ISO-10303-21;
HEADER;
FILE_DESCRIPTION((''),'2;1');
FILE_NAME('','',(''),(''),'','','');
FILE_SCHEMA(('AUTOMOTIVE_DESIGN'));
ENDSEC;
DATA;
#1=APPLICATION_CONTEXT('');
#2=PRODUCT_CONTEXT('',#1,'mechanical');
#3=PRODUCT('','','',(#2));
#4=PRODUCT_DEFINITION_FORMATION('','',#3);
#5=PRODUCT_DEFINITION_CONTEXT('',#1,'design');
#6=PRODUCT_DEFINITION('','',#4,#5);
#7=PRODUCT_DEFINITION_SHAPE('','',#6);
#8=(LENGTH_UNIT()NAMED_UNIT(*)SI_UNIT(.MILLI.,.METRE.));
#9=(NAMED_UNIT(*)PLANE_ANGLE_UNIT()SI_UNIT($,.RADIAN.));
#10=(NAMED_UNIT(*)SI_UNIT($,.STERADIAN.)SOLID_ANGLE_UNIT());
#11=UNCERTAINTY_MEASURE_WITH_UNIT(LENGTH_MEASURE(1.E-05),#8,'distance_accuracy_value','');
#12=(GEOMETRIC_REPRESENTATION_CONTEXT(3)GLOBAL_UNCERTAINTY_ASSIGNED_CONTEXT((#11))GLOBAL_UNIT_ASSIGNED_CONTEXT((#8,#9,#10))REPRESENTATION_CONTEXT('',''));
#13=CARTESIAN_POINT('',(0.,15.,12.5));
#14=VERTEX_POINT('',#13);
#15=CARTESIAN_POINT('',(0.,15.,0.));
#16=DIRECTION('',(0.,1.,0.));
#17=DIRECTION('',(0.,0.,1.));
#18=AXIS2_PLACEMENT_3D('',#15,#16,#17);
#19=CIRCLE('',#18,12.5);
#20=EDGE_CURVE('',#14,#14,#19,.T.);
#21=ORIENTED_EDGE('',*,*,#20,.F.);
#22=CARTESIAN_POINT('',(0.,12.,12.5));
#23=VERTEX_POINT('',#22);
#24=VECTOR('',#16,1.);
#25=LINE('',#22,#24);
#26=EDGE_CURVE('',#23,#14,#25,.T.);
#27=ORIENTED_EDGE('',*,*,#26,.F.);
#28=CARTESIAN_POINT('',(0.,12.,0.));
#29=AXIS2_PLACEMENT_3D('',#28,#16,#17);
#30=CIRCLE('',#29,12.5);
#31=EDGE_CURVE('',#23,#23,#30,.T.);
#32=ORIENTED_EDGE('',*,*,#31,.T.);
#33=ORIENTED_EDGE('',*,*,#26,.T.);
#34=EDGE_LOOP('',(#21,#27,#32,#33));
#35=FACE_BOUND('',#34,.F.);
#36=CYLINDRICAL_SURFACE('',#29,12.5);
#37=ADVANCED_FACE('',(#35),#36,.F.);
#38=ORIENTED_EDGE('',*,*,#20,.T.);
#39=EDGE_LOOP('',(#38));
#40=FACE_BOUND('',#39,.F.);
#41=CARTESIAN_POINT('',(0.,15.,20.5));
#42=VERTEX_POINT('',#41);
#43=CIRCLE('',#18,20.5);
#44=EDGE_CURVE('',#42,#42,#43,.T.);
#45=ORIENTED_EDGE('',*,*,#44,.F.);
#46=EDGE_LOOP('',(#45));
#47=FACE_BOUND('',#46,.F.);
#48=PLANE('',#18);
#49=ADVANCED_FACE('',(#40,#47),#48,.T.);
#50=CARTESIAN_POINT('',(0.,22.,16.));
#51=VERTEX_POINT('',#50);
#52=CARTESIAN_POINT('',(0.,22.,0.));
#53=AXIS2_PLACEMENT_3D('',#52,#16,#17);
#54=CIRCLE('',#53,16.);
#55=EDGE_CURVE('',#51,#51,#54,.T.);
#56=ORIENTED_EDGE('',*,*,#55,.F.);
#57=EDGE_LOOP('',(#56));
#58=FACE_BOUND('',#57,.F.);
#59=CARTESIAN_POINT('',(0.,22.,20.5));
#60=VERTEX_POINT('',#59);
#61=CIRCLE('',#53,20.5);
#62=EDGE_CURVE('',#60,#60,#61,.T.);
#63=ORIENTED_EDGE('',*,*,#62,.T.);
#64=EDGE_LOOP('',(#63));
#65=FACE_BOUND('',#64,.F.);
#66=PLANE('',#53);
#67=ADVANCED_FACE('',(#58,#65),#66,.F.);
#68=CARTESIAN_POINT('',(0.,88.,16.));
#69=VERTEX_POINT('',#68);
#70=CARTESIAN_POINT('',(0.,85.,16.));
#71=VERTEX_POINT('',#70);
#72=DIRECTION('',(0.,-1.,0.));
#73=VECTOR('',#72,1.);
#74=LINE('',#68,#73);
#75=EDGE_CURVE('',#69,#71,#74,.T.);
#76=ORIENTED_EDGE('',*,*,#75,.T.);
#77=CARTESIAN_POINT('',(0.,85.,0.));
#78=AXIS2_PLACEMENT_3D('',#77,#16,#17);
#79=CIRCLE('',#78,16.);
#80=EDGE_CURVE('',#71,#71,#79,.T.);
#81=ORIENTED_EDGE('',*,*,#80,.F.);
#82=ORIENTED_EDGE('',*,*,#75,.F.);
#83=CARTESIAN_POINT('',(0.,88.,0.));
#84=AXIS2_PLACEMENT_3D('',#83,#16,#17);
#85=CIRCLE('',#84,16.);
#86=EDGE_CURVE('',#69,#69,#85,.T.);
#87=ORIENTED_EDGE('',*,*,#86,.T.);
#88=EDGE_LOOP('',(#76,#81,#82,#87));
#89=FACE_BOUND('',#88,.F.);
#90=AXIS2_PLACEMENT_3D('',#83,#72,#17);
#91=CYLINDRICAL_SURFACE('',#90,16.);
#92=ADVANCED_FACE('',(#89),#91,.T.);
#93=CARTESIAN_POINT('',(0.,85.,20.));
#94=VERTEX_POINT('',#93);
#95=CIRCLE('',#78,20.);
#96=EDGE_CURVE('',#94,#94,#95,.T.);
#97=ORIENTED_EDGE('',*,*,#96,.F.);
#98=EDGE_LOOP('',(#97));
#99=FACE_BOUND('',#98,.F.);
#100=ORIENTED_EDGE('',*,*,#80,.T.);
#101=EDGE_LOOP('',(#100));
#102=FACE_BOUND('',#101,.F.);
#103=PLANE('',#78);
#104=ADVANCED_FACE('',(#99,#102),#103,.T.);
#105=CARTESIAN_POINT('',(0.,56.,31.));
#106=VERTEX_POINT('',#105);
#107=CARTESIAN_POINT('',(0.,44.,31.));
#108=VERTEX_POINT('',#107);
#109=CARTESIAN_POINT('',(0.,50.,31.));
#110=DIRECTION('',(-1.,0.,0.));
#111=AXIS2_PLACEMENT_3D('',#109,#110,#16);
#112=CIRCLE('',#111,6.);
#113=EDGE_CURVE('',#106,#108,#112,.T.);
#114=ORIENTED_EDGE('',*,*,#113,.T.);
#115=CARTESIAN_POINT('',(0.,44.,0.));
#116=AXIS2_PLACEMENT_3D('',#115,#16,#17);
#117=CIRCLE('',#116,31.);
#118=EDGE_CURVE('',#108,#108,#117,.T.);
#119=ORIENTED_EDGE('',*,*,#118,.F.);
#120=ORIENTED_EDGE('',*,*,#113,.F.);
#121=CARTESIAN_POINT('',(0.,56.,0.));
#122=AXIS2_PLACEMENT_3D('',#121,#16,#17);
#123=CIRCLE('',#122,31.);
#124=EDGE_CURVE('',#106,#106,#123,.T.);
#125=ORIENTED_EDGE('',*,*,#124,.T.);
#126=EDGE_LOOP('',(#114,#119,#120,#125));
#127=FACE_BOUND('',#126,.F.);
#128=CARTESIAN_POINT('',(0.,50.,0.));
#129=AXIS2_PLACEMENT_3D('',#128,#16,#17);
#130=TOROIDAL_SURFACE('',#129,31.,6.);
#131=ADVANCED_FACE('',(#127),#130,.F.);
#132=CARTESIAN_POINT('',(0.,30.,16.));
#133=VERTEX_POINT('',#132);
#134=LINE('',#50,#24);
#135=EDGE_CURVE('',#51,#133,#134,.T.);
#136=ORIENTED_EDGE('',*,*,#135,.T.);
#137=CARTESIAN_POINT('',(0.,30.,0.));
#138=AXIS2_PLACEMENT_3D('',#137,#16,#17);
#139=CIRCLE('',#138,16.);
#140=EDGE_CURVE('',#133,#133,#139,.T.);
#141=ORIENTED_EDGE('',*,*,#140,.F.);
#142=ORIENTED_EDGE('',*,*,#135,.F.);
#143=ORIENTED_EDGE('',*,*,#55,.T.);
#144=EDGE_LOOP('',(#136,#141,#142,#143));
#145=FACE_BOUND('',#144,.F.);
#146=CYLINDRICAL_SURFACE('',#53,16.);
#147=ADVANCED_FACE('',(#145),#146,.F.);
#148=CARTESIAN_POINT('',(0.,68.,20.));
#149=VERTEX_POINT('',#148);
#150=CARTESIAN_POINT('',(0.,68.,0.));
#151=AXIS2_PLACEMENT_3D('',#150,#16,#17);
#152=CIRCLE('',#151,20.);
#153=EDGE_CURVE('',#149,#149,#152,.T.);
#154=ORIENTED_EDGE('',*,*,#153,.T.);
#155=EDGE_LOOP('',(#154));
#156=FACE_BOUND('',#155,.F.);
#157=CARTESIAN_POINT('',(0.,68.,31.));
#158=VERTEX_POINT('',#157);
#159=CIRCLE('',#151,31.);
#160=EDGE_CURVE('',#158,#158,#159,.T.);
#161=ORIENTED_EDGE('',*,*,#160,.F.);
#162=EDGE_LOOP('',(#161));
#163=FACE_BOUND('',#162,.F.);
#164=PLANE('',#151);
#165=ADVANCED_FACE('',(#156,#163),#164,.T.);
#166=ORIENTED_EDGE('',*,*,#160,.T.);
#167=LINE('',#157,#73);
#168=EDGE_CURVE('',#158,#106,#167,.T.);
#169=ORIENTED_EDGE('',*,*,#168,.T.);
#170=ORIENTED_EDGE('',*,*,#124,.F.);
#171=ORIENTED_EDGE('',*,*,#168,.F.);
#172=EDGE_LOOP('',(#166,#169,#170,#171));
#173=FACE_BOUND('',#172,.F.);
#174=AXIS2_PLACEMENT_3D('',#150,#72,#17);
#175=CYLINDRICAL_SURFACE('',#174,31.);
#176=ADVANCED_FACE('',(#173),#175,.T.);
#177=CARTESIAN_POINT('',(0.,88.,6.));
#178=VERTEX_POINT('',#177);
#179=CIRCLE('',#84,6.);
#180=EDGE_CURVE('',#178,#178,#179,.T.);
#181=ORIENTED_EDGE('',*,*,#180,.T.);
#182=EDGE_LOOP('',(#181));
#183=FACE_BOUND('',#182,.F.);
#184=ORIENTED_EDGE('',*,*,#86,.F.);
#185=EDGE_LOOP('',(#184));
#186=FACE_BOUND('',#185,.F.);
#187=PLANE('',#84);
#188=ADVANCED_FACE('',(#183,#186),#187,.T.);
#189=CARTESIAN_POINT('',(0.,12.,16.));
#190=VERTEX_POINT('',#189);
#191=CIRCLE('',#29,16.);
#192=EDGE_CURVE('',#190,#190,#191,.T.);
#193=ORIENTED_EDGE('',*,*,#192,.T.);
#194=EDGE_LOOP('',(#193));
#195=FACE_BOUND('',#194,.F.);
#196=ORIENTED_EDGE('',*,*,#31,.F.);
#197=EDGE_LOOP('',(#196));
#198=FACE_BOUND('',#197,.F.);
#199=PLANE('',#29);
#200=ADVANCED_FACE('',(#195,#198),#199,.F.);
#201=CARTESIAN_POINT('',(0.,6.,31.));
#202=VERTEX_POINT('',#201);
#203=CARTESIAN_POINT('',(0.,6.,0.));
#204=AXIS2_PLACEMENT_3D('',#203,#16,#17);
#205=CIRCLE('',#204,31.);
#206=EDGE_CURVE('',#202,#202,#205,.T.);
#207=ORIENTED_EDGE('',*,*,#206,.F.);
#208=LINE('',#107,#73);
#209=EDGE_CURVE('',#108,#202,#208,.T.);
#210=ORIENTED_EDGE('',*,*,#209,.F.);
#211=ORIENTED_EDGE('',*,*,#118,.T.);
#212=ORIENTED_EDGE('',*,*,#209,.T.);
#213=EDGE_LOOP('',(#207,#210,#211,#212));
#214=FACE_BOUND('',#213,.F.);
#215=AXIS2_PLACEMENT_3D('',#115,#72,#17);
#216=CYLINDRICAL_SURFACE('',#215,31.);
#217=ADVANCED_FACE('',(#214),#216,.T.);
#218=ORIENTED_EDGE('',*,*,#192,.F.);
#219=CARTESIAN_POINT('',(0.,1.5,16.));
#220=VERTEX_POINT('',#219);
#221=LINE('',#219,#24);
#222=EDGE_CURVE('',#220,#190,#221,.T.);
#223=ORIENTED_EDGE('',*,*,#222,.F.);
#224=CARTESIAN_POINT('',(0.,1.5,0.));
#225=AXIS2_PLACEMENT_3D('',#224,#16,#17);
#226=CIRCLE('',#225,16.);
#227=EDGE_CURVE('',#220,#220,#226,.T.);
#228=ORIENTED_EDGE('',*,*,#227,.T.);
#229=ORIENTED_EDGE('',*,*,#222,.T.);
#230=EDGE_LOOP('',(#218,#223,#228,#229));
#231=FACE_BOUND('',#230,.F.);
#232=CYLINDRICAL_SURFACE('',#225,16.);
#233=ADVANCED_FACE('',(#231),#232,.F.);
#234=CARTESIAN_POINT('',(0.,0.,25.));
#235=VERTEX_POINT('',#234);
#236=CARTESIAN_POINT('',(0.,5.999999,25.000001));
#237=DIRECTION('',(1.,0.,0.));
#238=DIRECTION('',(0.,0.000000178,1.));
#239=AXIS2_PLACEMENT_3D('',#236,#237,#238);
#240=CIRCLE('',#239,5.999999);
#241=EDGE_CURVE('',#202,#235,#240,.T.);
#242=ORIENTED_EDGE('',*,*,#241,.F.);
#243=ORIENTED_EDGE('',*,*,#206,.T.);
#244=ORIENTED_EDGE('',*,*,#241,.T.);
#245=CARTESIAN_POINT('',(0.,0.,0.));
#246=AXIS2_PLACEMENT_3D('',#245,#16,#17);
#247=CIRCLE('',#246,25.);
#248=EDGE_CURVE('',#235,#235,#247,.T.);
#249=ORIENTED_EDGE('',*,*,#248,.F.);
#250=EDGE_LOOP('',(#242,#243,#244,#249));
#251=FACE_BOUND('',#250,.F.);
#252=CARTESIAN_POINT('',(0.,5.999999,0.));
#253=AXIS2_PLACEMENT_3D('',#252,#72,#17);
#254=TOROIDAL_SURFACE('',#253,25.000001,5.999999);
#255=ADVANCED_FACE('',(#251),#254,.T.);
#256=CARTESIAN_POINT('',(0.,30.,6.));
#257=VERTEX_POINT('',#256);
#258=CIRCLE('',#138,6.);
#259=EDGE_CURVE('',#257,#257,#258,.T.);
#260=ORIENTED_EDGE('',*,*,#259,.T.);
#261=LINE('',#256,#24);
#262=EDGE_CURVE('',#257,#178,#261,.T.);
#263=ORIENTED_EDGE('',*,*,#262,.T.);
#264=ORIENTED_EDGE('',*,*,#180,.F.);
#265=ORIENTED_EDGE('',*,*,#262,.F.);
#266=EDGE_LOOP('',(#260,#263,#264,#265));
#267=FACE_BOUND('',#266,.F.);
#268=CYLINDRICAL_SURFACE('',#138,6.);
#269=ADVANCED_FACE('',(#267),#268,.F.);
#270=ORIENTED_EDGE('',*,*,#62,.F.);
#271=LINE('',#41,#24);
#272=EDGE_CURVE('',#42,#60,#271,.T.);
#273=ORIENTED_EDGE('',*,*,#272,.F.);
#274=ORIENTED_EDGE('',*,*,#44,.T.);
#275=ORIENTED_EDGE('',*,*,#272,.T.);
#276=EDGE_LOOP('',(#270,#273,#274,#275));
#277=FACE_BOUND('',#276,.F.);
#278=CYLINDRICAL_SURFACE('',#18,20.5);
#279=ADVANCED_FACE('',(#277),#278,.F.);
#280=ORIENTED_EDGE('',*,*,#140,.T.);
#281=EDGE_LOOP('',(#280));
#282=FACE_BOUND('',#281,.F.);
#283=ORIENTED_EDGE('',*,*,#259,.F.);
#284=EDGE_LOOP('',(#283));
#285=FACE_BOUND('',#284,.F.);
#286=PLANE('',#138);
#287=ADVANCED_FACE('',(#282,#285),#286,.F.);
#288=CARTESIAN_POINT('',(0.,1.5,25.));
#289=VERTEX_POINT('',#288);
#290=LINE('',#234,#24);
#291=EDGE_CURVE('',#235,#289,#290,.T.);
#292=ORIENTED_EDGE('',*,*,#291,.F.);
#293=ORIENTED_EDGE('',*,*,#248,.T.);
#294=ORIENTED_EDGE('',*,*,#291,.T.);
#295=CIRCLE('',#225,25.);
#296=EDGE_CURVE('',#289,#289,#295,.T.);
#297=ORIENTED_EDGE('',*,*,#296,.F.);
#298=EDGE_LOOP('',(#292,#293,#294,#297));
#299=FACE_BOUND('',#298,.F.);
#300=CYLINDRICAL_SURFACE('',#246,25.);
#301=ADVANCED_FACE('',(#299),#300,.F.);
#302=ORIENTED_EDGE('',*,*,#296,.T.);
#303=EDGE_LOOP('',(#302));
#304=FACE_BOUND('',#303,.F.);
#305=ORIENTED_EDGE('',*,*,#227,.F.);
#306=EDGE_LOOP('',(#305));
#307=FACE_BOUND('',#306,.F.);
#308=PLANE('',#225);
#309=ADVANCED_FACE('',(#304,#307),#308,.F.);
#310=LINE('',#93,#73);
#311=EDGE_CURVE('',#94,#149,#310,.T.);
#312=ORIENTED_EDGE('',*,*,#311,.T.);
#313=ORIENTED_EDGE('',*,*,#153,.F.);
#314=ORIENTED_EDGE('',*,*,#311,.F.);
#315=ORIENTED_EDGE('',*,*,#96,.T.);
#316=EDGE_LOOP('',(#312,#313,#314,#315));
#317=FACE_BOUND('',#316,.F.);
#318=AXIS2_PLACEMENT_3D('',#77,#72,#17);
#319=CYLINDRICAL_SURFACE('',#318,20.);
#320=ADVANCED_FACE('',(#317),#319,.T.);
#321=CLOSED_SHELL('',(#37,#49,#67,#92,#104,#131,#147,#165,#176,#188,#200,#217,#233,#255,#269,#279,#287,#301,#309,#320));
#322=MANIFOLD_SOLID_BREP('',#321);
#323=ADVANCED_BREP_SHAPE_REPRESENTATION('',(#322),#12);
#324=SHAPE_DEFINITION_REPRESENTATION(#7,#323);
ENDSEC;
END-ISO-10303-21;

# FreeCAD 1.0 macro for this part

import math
import FreeCAD as App
import Part
import Sketcher
Q = App.Units.Quantity

doc = App.newDocument("Part")
body = doc.addObject("PartDesign::Body", "Body")

# Sketch on YZ plane
sketch1 = body.newObject("Sketcher::SketchObject", "Sketch")
sketch1.AttachmentSupport = (doc.getObject("YZ_Plane"), [""])
sketch1.MapMode = "FlatFace"
sketch1.addGeometry([
    Part.ArcOfCircle(Part.Circle(App.Vector(6, 25, 0), App.Vector(0, 0, 1), 6), math.radians(90), math.radians(180)),  # 0
    Part.LineSegment(App.Vector(0, 25, 0), App.Vector(1.5, 25, 0)),  # 1
    Part.LineSegment(App.Vector(1.5, 25, 0), App.Vector(1.5, 16, 0)),  # 2
    Part.LineSegment(App.Vector(1.5, 16, 0), App.Vector(12, 16, 0)),  # 3
    Part.LineSegment(App.Vector(12, 16, 0), App.Vector(12, 12.5, 0)),  # 4
    Part.LineSegment(App.Vector(12, 12.5, 0), App.Vector(15, 12.5, 0)),  # 5
    Part.LineSegment(App.Vector(15, 12.5, 0), App.Vector(15, 20.5, 0)),  # 6
    Part.LineSegment(App.Vector(15, 20.5, 0), App.Vector(22, 20.5, 0)),  # 7
    Part.LineSegment(App.Vector(22, 20.5, 0), App.Vector(22, 16, 0)),  # 8
    Part.LineSegment(App.Vector(22, 16, 0), App.Vector(30, 16, 0)),  # 9
    Part.LineSegment(App.Vector(30, 16, 0), App.Vector(30, 6, 0)),  # 10
    Part.LineSegment(App.Vector(30, 6, 0), App.Vector(88, 6, 0)),  # 11
    Part.LineSegment(App.Vector(88, 6, 0), App.Vector(88, 16, 0)),  # 12
    Part.LineSegment(App.Vector(88, 16, 0), App.Vector(85, 16, 0)),  # 13
    Part.LineSegment(App.Vector(85, 16, 0), App.Vector(85, 20, 0)),  # 14
    Part.LineSegment(App.Vector(85, 20, 0), App.Vector(68, 20, 0)),  # 15
    Part.LineSegment(App.Vector(68, 20, 0), App.Vector(68, 31, 0)),  # 16
    Part.LineSegment(App.Vector(68, 31, 0), App.Vector(56, 31, 0)),  # 17
    Part.ArcOfCircle(Part.Circle(App.Vector(50, 31, 0), App.Vector(0, 0, 1), 6), math.radians(180), math.radians(360)),  # 18
    Part.LineSegment(App.Vector(44, 31, 0), App.Vector(6, 31, 0)),  # 19
], False)
sketch1.addConstraint([
    Sketcher.Constraint("Coincident", 0, 2, 1, 1),
    Sketcher.Constraint("Coincident", 1, 2, 2, 1),
    Sketcher.Constraint("Coincident", 2, 2, 3, 1),
    Sketcher.Constraint("Coincident", 3, 2, 4, 1),
    Sketcher.Constraint("Coincident", 4, 2, 5, 1),
    Sketcher.Constraint("Coincident", 5, 2, 6, 1),
    Sketcher.Constraint("Coincident", 6, 2, 7, 1),
    Sketcher.Constraint("Coincident", 7, 2, 8, 1),
    Sketcher.Constraint("Coincident", 8, 2, 9, 1),
    Sketcher.Constraint("Coincident", 9, 2, 10, 1),
    Sketcher.Constraint("Coincident", 10, 2, 11, 1),
    Sketcher.Constraint("Coincident", 11, 2, 12, 1),
    Sketcher.Constraint("Coincident", 12, 2, 13, 1),
    Sketcher.Constraint("Coincident", 13, 2, 14, 1),
    Sketcher.Constraint("Coincident", 14, 2, 15, 1),
    Sketcher.Constraint("Coincident", 15, 2, 16, 1),
    Sketcher.Constraint("Coincident", 16, 2, 17, 1),
    Sketcher.Constraint("Coincident", 17, 2, 18, 2),
    Sketcher.Constraint("Coincident", 18, 1, 19, 1),
    Sketcher.Constraint("Tangent", 19, 2, 0, 1),
    Sketcher.Constraint("Horizontal", 1),
    Sketcher.Constraint("Vertical", 2),
    Sketcher.Constraint("Horizontal", 3),
    Sketcher.Constraint("Vertical", 4),
    Sketcher.Constraint("Horizontal", 5),
    Sketcher.Constraint("Vertical", 6),
    Sketcher.Constraint("Horizontal", 7),
    Sketcher.Constraint("Vertical", 8),
    Sketcher.Constraint("Horizontal", 9),
    Sketcher.Constraint("Vertical", 10),
    Sketcher.Constraint("Horizontal", 11),
    Sketcher.Constraint("Vertical", 12),
    Sketcher.Constraint("Horizontal", 13),
    Sketcher.Constraint("Vertical", 14),
    Sketcher.Constraint("Horizontal", 15),
    Sketcher.Constraint("Vertical", 16),
    Sketcher.Constraint("Horizontal", 17),
    Sketcher.Constraint("Horizontal", 19),
    Sketcher.Constraint("Equal", 0, 18),
    Sketcher.Constraint("PointOnObject", 0, 2, -2),
    Sketcher.Constraint("Horizontal", 3, 2, 8, 2),
    Sketcher.Constraint("Horizontal", 9, 2, 12, 2),
    Sketcher.Constraint("Horizontal", 18, 3, 16, 2),
    Sketcher.Constraint("Horizontal", 17, 2, 18, 1),
    Sketcher.Constraint("Equal", 5, 13),
    Sketcher.Constraint("Equal", 9, 6),
    Sketcher.Constraint("Radius", 0, Q("5.999999 mm")),
    Sketcher.Constraint("DistanceX", 5, 1, 5, 2, Q("3 mm")),
    Sketcher.Constraint("DistanceX", 7, 1, 7, 2, Q("7 mm")),
    Sketcher.Constraint("DistanceX", 9, 1, 9, 2, Q("8 mm")),
    Sketcher.Constraint("DistanceX", 11, 1, 11, 2, Q("58 mm")),
    Sketcher.Constraint("DistanceX", 15, 2, 15, 1, Q("17 mm")),
    Sketcher.Constraint("DistanceX", 17, 2, 17, 1, Q("12 mm")),
    Sketcher.Constraint("DistanceX", 19, 2, 19, 1, Q("38 mm")),
    Sketcher.Constraint("DistanceY", 2, 2, 2, 1, Q("9 mm")),
    Sketcher.Constraint("DistanceY", 10, 2, 10, 1, Q("10 mm")),
    Sketcher.Constraint("DistanceY", 14, 1, 14, 2, Q("4 mm")),
    Sketcher.Constraint("DistanceY", 16, 1, 16, 2, Q("11 mm")),
    Sketcher.Constraint("DistanceX", 1, 1, 1, 2, Q("1.5 mm")),
    Sketcher.Constraint("DistanceY", 4, 2, 4, 1, Q("3.5 mm")),
    Sketcher.Constraint("DistanceY", -1, 1, 0, 3, Q("25.000001 mm")),
])
revolution = body.newObject("PartDesign::Revolution", "Revolution")
revolution.Profile = sketch1
revolution.ReferenceAxis = (sketch1, ["H_Axis"])
revolution.Angle = 360

doc.recompute()
